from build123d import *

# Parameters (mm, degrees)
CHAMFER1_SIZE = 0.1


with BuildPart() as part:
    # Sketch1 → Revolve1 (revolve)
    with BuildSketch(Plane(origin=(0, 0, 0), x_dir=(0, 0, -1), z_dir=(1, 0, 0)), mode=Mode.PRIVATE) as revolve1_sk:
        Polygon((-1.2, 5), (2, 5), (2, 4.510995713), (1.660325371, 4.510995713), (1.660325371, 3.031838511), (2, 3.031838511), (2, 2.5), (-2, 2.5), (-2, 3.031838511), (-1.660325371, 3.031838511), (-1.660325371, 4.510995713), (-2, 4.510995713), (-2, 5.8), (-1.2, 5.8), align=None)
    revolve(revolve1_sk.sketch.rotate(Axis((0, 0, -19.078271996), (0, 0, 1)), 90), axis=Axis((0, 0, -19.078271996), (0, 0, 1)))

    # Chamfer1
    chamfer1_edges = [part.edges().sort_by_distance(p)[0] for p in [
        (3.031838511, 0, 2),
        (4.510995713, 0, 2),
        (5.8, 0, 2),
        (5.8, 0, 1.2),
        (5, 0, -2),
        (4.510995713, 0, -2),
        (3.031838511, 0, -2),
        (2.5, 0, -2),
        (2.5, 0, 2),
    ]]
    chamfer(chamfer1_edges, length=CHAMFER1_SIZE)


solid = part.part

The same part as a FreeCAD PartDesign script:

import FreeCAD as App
import Part
import Sketcher
from FreeCAD import Vector


def edges_at(feature, points):
    """Names of the edges that pass closest to the given points."""
    edges = feature.Shape.Edges
    near = lambda p: min(range(len(edges)), key=lambda i: edges[i].distToShape(Part.Vertex(*p))[0])
    return sorted({f"Edge{near(p) + 1}" for p in points})


def add_polygon(sketch, points):
    """Adds a closed chain of lines whose ends are joined by coincident constraints."""
    first, n = sketch.GeometryCount, len(points)
    for a, b in zip(points, points[1:] + points[:1]):
        sketch.addGeometry(Part.LineSegment(App.Vector(*a, 0), App.Vector(*b, 0)), False)
    for i in range(n):
        sketch.addConstraint(Sketcher.Constraint("Coincident", first + i, 2, first + (i + 1) % n, 1))

doc = App.newDocument("Part")
params = doc.addObject("Spreadsheet::Sheet", "Params")
for row, (alias, value) in enumerate([
    ("sketch1_height", "4 mm"),
    ("sketch1_width", "0.8 mm"),
    ("revolution_angle", "360 deg"),
    ("chamfer_size", "0.1 mm"),
], start=1):
    params.set(f"A{row}", alias)
    params.set(f"B{row}", "=" + value)
    params.setAlias(f"B{row}", alias)

body = doc.addObject("PartDesign::Body", "Body")

# Sketch on YZ plane
sketch1 = body.newObject("Sketcher::SketchObject", "Sketch")
sketch1.AttachmentSupport = (doc.getObject("YZ_Plane"), [""])
sketch1.MapMode = "FlatFace"
add_polygon(sketch1, [(5, -2), (5, 1.2), (5.8, 1.2), (5.8, 2), (4.51, 2), (4.51, 1.66), (3.03, 1.66), (3.03, 2), (2.5, 2), (2.5, -2), (3.03, -2), (3.03, -1.66), (4.51, -1.66), (4.51, -2)])  # lines 0-13
sketch1.addConstraint([
    Sketcher.Constraint("Vertical", 0),
    Sketcher.Constraint("Horizontal", 1),
    Sketcher.Constraint("Vertical", 2),
    Sketcher.Constraint("Horizontal", 3),
    Sketcher.Constraint("Vertical", 4),
    Sketcher.Constraint("Horizontal", 5),
    Sketcher.Constraint("Vertical", 6),
    Sketcher.Constraint("Horizontal", 7),
    Sketcher.Constraint("Vertical", 8),
    Sketcher.Constraint("Horizontal", 9),
    Sketcher.Constraint("Vertical", 10),
    Sketcher.Constraint("Horizontal", 11),
    Sketcher.Constraint("Vertical", 12),
    Sketcher.Constraint("Horizontal", 13),
    Sketcher.Constraint("Symmetric", 6, 2, 9, 2, -1),
    Sketcher.Constraint("Symmetric", 4, 2, 11, 2, -1),
    Sketcher.Constraint("Horizontal", 3, 2, 6, 2),
    Sketcher.Constraint("Horizontal", 9, 2, 12, 2),
    Sketcher.Constraint("Equal", 1, 2),
    Sketcher.Constraint("DistanceY", 8, 2, 8, 1, 4.0),
    Sketcher.Constraint("DistanceX", 1, 1, 1, 2, 0.8),
    Sketcher.Constraint("DistanceX", -1, 1, 0, 2, 5.0),
    Sketcher.Constraint("DistanceX", -1, 1, 7, 2, 2.5),
    Sketcher.Constraint("DistanceX", 7, 2, 7, 1, 0.531839),
    Sketcher.Constraint("DistanceX", 3, 2, 3, 1, 1.289004),
    Sketcher.Constraint("DistanceY", 4, 2, 4, 1, 0.339675),
])
sketch1.setExpression("Constraints[33]", "Params.sketch1_height")
sketch1.setExpression("Constraints[34]", "Params.sketch1_width")
revolution = body.newObject("PartDesign::Revolution", "Revolution")
revolution.Profile = sketch1
revolution.ReferenceAxis = (sketch1, ["V_Axis"])
revolution.setExpression("Angle", "Params.revolution_angle")
doc.recompute()

chamfer = body.newObject("PartDesign::Chamfer", "Chamfer")
chamfer.Base = (revolution, edges_at(revolution, [
    (3.032, 0, 2),
    (4.511, 0, 2),
    (5.8, 0, 2),
    (5.8, 0, 1.2),
    (5, 0, -2),
    (4.511, 0, -2),
    (3.032, 0, -2),
    (2.5, 0, -2),
    (2.5, 0, 2),
]))
chamfer.setExpression("Size", "Params.chamfer_size")

doc.recompute()
